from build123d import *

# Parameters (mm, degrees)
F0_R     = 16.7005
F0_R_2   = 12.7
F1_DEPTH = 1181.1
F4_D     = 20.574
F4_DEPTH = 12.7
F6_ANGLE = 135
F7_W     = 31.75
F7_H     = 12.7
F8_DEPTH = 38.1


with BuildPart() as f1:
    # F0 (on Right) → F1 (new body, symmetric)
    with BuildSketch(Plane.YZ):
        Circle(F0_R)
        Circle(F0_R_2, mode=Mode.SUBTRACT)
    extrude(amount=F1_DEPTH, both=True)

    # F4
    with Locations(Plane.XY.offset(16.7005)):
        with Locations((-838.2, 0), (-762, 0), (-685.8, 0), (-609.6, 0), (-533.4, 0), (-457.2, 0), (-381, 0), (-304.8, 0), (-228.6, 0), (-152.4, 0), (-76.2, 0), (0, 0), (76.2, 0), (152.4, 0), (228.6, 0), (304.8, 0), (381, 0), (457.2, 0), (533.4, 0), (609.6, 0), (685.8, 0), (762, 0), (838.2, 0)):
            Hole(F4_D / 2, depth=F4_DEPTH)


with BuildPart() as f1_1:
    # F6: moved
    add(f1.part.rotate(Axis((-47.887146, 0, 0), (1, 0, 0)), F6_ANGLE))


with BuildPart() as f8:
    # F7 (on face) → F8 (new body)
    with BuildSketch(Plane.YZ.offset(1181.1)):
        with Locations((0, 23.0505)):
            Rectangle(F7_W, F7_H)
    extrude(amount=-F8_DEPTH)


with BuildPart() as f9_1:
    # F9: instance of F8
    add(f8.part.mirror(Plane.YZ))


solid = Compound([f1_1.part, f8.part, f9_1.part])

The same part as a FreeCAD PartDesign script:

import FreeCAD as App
import Part
import Sketcher

V = App.Vector
Q = App.Units.Quantity


def add_polygon(sketch, points):
    """Adds a closed chain of lines whose ends are joined by coincident constraints."""
    first, n = sketch.GeometryCount, len(points)
    for a, b in zip(points, points[1:] + points[:1]):
        sketch.addGeometry(Part.LineSegment(App.Vector(*a, 0), App.Vector(*b, 0)), False)
    for i in range(n):
        sketch.addConstraint(Sketcher.Constraint("Coincident", first + i, 2, first + (i + 1) % n, 1))

doc = App.newDocument("Part")
body = doc.addObject("PartDesign::Body", "Body")

# Sketch on YZ plane
sketch1 = body.newObject("Sketcher::SketchObject", "Sketch")
sketch1.AttachmentSupport = (doc.getObject("YZ_Plane"), [""])
sketch1.MapMode = "FlatFace"
sketch1.addGeometry([
    Part.Circle(V(0, 0, 0), V(0, 0, 1), 17),
    Part.Circle(V(0, 0, 0), V(0, 0, 1), 13),
], False)
sketch1.addConstraint([
    Sketcher.Constraint("Coincident", 0, 3, -1, 1),
    Sketcher.Constraint("Coincident", 1, 3, -1, 1),
    Sketcher.Constraint("Diameter", 1, Q("1 in")),
    Sketcher.Constraint("Diameter", 0, Q("1.315 in")),
])
pad1 = body.newObject("PartDesign::Pad", "Pad")
pad1.Profile = sketch1
pad1.Length = Q("93 in")
pad1.Midplane = True

# Sketch on XY plane
sketch2 = body.newObject("Sketcher::SketchObject", "Sketch001")
sketch2.AttachmentSupport = (doc.getObject("XY_Plane"), [""])
sketch2.MapMode = "FlatFace"
sketch2.AttachmentOffset = App.Placement(V(0, 0, 0.6575 * 25.4), App.Rotation())
sketch2.addGeometry([
    Part.Circle(V(-838, 0, 0), V(0, 0, 1), 10),  # 0
    Part.Circle(V(-762, 0, 0), V(0, 0, 1), 10),  # 1
    Part.Circle(V(-686, 0, 0), V(0, 0, 1), 10),  # 2
    Part.Circle(V(-610, 0, 0), V(0, 0, 1), 10),  # 3
    Part.Circle(V(-533, 0, 0), V(0, 0, 1), 10),  # 4
    Part.Circle(V(-457, 0, 0), V(0, 0, 1), 10),  # 5
    Part.Circle(V(-381, 0, 0), V(0, 0, 1), 10),  # 6
    Part.Circle(V(-305, 0, 0), V(0, 0, 1), 10),  # 7
    Part.Circle(V(-229, 0, 0), V(0, 0, 1), 10),  # 8
    Part.Circle(V(-152, 0, 0), V(0, 0, 1), 10),  # 9
    Part.Circle(V(-76, 0, 0), V(0, 0, 1), 10),  # 10
    Part.Circle(V(0, 0, 0), V(0, 0, 1), 10),  # 11
    Part.Circle(V(76, 0, 0), V(0, 0, 1), 10),  # 12
    Part.Circle(V(152, 0, 0), V(0, 0, 1), 10),  # 13
    Part.Circle(V(229, 0, 0), V(0, 0, 1), 10),  # 14
    Part.Circle(V(305, 0, 0), V(0, 0, 1), 10),  # 15
    Part.Circle(V(381, 0, 0), V(0, 0, 1), 10),  # 16
    Part.Circle(V(457, 0, 0), V(0, 0, 1), 10),  # 17
    Part.Circle(V(533, 0, 0), V(0, 0, 1), 10),  # 18
    Part.Circle(V(610, 0, 0), V(0, 0, 1), 10),  # 19
    Part.Circle(V(686, 0, 0), V(0, 0, 1), 10),  # 20
    Part.Circle(V(762, 0, 0), V(0, 0, 1), 10),  # 21
    Part.Circle(V(838, 0, 0), V(0, 0, 1), 10),  # 22
], False)
sketch2.addConstraint([
    Sketcher.Constraint("Coincident", 11, 3, -1, 1),
    Sketcher.Constraint("Equal", 0, 1),
    Sketcher.Constraint("Equal", 1, 2),
    Sketcher.Constraint("Equal", 2, 3),
    Sketcher.Constraint("Equal", 3, 4),
    Sketcher.Constraint("Equal", 4, 5),
    Sketcher.Constraint("Equal", 5, 6),
    Sketcher.Constraint("Equal", 6, 7),
    Sketcher.Constraint("Equal", 7, 8),
    Sketcher.Constraint("Equal", 8, 9),
    Sketcher.Constraint("Equal", 9, 10),
    Sketcher.Constraint("Equal", 10, 11),
    Sketcher.Constraint("Equal", 11, 12),
    Sketcher.Constraint("Equal", 12, 13),
    Sketcher.Constraint("Equal", 13, 14),
    Sketcher.Constraint("Equal", 14, 15),
    Sketcher.Constraint("Equal", 15, 16),
    Sketcher.Constraint("Equal", 16, 17),
    Sketcher.Constraint("Equal", 17, 18),
    Sketcher.Constraint("Equal", 18, 19),
    Sketcher.Constraint("Equal", 19, 20),
    Sketcher.Constraint("Equal", 20, 21),
    Sketcher.Constraint("Equal", 21, 22),
    Sketcher.Constraint("Symmetric", 10, 3, 12, 3, -1, 1),
    Sketcher.Constraint("Symmetric", 9, 3, 13, 3, -1, 1),
    Sketcher.Constraint("Symmetric", 8, 3, 14, 3, -1, 1),
    Sketcher.Constraint("Symmetric", 7, 3, 15, 3, -1, 1),
    Sketcher.Constraint("Symmetric", 6, 3, 16, 3, -1, 1),
    Sketcher.Constraint("Symmetric", 5, 3, 17, 3, -1, 1),
    Sketcher.Constraint("Symmetric", 4, 3, 18, 3, -1, 1),
    Sketcher.Constraint("Symmetric", 3, 3, 19, 3, -1, 1),
    Sketcher.Constraint("Symmetric", 2, 3, 20, 3, -1, 1),
    Sketcher.Constraint("Symmetric", 1, 3, 21, 3, -1, 1),
    Sketcher.Constraint("Symmetric", 0, 3, 22, 3, -1, 1),
    Sketcher.Constraint("PointOnObject", 0, 3, -1),
    Sketcher.Constraint("PointOnObject", 1, 3, -1),
    Sketcher.Constraint("PointOnObject", 2, 3, -1),
    Sketcher.Constraint("PointOnObject", 3, 3, -1),
    Sketcher.Constraint("PointOnObject", 4, 3, -1),
    Sketcher.Constraint("PointOnObject", 5, 3, -1),
    Sketcher.Constraint("PointOnObject", 6, 3, -1),
    Sketcher.Constraint("PointOnObject", 7, 3, -1),
    Sketcher.Constraint("PointOnObject", 8, 3, -1),
    Sketcher.Constraint("PointOnObject", 9, 3, -1),
    Sketcher.Constraint("PointOnObject", 10, 3, -1),
    Sketcher.Constraint("Diameter", 0, Q("0.81 in")),
    Sketcher.Constraint("DistanceX", 0, 3, -1, 1, Q("33 in")),
    Sketcher.Constraint("DistanceX", 1, 3, -1, 1, Q("30 in")),
    Sketcher.Constraint("DistanceX", 2, 3, -1, 1, Q("27 in")),
    Sketcher.Constraint("DistanceX", 3, 3, -1, 1, Q("24 in")),
    Sketcher.Constraint("DistanceX", 4, 3, -1, 1, Q("21 in")),
    Sketcher.Constraint("DistanceX", 5, 3, -1, 1, Q("18 in")),
    Sketcher.Constraint("DistanceX", 6, 3, -1, 1, Q("15 in")),
    Sketcher.Constraint("DistanceX", 7, 3, -1, 1, Q("12 in")),
    Sketcher.Constraint("DistanceX", 8, 3, -1, 1, Q("9 in")),
    Sketcher.Constraint("DistanceX", 9, 3, -1, 1, Q("6 in")),
    Sketcher.Constraint("DistanceX", 10, 3, -1, 1, Q("3 in")),
])
doc.recompute()
hole = body.newObject("PartDesign::Hole", "Hole")
hole.Profile = sketch2
hole.ThreadType = "None"
hole.Diameter = Q("0.81 in")
hole.DepthType = "Dimension"
hole.Depth = Q("0.5 in")
hole.DrillPoint = "Flat"
body2 = doc.addObject("PartDesign::Body", "Body001")
doc.recompute()

body.Placement = App.Placement(V(0, 0, 0), App.Rotation(V(1, 0, 0), 135))
boolean = body2.newObject("PartDesign::Boolean", "Boolean")
boolean.Type = "Fuse"
boolean.addObjects([body])
body3 = doc.addObject("PartDesign::Body", "Body002")

# Sketch on YZ plane
sketch3 = body3.newObject("Sketcher::SketchObject", "Sketch002")
sketch3.AttachmentSupport = (doc.getObject("YZ_Plane002"), [""])
sketch3.MapMode = "FlatFace"
sketch3.AttachmentOffset = App.Placement(V(0, 0, 46.5 * 25.4), App.Rotation())
add_polygon(sketch3, [(-16, 29), (-16, 17), (16, 17), (16, 29)])  # lines 0-3
sketch3.addConstraint([
    Sketcher.Constraint("Vertical", 0),
    Sketcher.Constraint("Horizontal", 1),
    Sketcher.Constraint("Vertical", 2),
    Sketcher.Constraint("Horizontal", 3),
    Sketcher.Constraint("DistanceY", 0, 2, 0, 1, Q("0.5 in")),
    Sketcher.Constraint("DistanceX", 1, 1, 1, 2, Q("1.25 in")),
    Sketcher.Constraint("DistanceX", 0, 2, -1, 1, Q("0.625 in")),
    Sketcher.Constraint("DistanceY", -1, 1, 0, 2, Q("0.6575 in")),
])
pad2 = body3.newObject("PartDesign::Pad", "Pad001")
pad2.Profile = sketch3
pad2.Length = Q("1.5 in")
pad2.Reversed = True
body4 = doc.addObject("PartDesign::Body", "Body003")
doc.recompute()

mirroring = doc.addObject("Part::Mirroring", "Mirroring")
mirroring.Source = body3
mirroring.Base = V(0, 0, 0)
mirroring.Normal = V(1, 0, 0)
body4.BaseFeature = mirroring
doc.recompute()
mirroring.Visibility = False

doc.recompute()
